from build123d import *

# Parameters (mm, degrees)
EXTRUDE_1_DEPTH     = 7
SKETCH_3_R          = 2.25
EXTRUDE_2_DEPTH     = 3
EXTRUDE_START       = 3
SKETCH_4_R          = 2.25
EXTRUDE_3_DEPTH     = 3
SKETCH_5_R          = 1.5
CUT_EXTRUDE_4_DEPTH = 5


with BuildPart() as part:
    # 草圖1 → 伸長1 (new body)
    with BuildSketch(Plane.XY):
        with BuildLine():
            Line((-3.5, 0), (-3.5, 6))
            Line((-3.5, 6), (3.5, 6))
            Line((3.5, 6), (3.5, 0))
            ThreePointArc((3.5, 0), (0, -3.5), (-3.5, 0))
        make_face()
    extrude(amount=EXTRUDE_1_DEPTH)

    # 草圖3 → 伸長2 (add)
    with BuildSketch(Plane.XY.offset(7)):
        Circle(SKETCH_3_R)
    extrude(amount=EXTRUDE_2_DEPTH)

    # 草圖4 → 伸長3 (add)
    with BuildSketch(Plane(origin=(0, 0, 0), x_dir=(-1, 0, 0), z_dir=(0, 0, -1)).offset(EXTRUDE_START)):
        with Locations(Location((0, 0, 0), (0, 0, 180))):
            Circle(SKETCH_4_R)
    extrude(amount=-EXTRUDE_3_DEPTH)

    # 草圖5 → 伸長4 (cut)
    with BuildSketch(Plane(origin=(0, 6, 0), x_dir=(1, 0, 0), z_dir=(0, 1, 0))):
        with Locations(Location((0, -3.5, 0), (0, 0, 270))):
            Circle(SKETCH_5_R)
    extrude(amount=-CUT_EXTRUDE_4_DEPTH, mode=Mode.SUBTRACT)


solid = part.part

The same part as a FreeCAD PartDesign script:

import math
import FreeCAD as App
import Part
import Sketcher

V = App.Vector

doc = App.newDocument("Part")
body = doc.addObject("PartDesign::Body", "Body")

sketch1 = body.newObject("Sketcher::SketchObject", "Sketch")
sketch1.AttachmentSupport = (doc.getObject("XY_Plane"), [""])
sketch1.MapMode = "FlatFace"
sketch1.addGeometry(Part.LineSegment(V(-3.5, 6, 0), V(-3.5, 0, 0)), False)
sketch1.addGeometry(Part.ArcOfCircle(Part.Circle(V(0, 0, 0), V(0, 0, 1), 3.5), math.radians(180), math.radians(360)), False)
sketch1.addGeometry(Part.LineSegment(V(3.5, 0, 0), V(3.5, 6, 0)), False)
sketch1.addGeometry(Part.LineSegment(V(3.5, 6, 0), V(-3.5, 6, 0)), False)
sketch1.addConstraint(Sketcher.Constraint("Tangent", 0, 2, 1, 1))
sketch1.addConstraint(Sketcher.Constraint("Tangent", 1, 2, 2, 1))
sketch1.addConstraint(Sketcher.Constraint("Coincident", 2, 2, 3, 1))
sketch1.addConstraint(Sketcher.Constraint("Coincident", 3, 2, 0, 1))
sketch1.addConstraint(Sketcher.Constraint("Vertical", 0))
sketch1.addConstraint(Sketcher.Constraint("Vertical", 2))
sketch1.addConstraint(Sketcher.Constraint("Horizontal", 3))
sketch1.addConstraint(Sketcher.Constraint("Coincident", 1, 3, -1, 1))
sketch1.addConstraint(Sketcher.Constraint("Radius", 1, 3.5))
sketch1.addConstraint(Sketcher.Constraint("DistanceY", 0, 2, 0, 1, 6.0))
pad1 = body.newObject("PartDesign::Pad", "Pad")
pad1.Profile = sketch1
pad1.Length = 7

sketch2 = body.newObject("Sketcher::SketchObject", "Sketch001")
sketch2.AttachmentSupport = (doc.getObject("XY_Plane"), [""])
sketch2.MapMode = "FlatFace"
sketch2.AttachmentOffset = App.Placement(V(0, 0, 7), App.Rotation())
sketch2.addGeometry(Part.Circle(V(0, 0, 0), V(0, 0, 1), 2.2), False)
sketch2.addConstraint(Sketcher.Constraint("Coincident", 0, 3, -1, 1))
sketch2.addConstraint(Sketcher.Constraint("Diameter", 0, 4.5))
pad2 = body.newObject("PartDesign::Pad", "Pad001")
pad2.Profile = sketch2
pad2.Length = 3

sketch3 = body.newObject("Sketcher::SketchObject", "Sketch002")
sketch3.AttachmentSupport = (doc.getObject("XY_Plane"), [""])
sketch3.MapMode = "FlatFace"
sketch3.AttachmentOffset = App.Placement(V(0, 0, -3), App.Rotation())
sketch3.addGeometry(Part.Circle(V(0, 0, 0), V(0, 0, 1), 2.2), False)
sketch3.addConstraint(Sketcher.Constraint("Coincident", 0, 3, -1, 1))
sketch3.addConstraint(Sketcher.Constraint("Diameter", 0, 4.5))
pad3 = body.newObject("PartDesign::Pad", "Pad002")
pad3.Profile = sketch3
pad3.Length = 3

sketch4 = body.newObject("Sketcher::SketchObject", "Sketch003")
sketch4.AttachmentSupport = (doc.getObject("XZ_Plane"), [""])
sketch4.MapMode = "FlatFace"
sketch4.AttachmentOffset = App.Placement(V(0, 0, -6), App.Rotation())
sketch4.addGeometry(Part.Circle(V(0, 3.5, 0), V(0, 0, 1), 1.5), False)
sketch4.addConstraint(Sketcher.Constraint("PointOnObject", 0, 3, -2))
sketch4.addConstraint(Sketcher.Constraint("Diameter", 0, 3.0))
sketch4.addConstraint(Sketcher.Constraint("DistanceY", -1, 1, 0, 3, 3.5))
pocket1 = body.newObject("PartDesign::Pocket", "Pocket")
pocket1.Profile = sketch4
pocket1.Length = 5
pocket1.Reversed = True

doc.recompute()
